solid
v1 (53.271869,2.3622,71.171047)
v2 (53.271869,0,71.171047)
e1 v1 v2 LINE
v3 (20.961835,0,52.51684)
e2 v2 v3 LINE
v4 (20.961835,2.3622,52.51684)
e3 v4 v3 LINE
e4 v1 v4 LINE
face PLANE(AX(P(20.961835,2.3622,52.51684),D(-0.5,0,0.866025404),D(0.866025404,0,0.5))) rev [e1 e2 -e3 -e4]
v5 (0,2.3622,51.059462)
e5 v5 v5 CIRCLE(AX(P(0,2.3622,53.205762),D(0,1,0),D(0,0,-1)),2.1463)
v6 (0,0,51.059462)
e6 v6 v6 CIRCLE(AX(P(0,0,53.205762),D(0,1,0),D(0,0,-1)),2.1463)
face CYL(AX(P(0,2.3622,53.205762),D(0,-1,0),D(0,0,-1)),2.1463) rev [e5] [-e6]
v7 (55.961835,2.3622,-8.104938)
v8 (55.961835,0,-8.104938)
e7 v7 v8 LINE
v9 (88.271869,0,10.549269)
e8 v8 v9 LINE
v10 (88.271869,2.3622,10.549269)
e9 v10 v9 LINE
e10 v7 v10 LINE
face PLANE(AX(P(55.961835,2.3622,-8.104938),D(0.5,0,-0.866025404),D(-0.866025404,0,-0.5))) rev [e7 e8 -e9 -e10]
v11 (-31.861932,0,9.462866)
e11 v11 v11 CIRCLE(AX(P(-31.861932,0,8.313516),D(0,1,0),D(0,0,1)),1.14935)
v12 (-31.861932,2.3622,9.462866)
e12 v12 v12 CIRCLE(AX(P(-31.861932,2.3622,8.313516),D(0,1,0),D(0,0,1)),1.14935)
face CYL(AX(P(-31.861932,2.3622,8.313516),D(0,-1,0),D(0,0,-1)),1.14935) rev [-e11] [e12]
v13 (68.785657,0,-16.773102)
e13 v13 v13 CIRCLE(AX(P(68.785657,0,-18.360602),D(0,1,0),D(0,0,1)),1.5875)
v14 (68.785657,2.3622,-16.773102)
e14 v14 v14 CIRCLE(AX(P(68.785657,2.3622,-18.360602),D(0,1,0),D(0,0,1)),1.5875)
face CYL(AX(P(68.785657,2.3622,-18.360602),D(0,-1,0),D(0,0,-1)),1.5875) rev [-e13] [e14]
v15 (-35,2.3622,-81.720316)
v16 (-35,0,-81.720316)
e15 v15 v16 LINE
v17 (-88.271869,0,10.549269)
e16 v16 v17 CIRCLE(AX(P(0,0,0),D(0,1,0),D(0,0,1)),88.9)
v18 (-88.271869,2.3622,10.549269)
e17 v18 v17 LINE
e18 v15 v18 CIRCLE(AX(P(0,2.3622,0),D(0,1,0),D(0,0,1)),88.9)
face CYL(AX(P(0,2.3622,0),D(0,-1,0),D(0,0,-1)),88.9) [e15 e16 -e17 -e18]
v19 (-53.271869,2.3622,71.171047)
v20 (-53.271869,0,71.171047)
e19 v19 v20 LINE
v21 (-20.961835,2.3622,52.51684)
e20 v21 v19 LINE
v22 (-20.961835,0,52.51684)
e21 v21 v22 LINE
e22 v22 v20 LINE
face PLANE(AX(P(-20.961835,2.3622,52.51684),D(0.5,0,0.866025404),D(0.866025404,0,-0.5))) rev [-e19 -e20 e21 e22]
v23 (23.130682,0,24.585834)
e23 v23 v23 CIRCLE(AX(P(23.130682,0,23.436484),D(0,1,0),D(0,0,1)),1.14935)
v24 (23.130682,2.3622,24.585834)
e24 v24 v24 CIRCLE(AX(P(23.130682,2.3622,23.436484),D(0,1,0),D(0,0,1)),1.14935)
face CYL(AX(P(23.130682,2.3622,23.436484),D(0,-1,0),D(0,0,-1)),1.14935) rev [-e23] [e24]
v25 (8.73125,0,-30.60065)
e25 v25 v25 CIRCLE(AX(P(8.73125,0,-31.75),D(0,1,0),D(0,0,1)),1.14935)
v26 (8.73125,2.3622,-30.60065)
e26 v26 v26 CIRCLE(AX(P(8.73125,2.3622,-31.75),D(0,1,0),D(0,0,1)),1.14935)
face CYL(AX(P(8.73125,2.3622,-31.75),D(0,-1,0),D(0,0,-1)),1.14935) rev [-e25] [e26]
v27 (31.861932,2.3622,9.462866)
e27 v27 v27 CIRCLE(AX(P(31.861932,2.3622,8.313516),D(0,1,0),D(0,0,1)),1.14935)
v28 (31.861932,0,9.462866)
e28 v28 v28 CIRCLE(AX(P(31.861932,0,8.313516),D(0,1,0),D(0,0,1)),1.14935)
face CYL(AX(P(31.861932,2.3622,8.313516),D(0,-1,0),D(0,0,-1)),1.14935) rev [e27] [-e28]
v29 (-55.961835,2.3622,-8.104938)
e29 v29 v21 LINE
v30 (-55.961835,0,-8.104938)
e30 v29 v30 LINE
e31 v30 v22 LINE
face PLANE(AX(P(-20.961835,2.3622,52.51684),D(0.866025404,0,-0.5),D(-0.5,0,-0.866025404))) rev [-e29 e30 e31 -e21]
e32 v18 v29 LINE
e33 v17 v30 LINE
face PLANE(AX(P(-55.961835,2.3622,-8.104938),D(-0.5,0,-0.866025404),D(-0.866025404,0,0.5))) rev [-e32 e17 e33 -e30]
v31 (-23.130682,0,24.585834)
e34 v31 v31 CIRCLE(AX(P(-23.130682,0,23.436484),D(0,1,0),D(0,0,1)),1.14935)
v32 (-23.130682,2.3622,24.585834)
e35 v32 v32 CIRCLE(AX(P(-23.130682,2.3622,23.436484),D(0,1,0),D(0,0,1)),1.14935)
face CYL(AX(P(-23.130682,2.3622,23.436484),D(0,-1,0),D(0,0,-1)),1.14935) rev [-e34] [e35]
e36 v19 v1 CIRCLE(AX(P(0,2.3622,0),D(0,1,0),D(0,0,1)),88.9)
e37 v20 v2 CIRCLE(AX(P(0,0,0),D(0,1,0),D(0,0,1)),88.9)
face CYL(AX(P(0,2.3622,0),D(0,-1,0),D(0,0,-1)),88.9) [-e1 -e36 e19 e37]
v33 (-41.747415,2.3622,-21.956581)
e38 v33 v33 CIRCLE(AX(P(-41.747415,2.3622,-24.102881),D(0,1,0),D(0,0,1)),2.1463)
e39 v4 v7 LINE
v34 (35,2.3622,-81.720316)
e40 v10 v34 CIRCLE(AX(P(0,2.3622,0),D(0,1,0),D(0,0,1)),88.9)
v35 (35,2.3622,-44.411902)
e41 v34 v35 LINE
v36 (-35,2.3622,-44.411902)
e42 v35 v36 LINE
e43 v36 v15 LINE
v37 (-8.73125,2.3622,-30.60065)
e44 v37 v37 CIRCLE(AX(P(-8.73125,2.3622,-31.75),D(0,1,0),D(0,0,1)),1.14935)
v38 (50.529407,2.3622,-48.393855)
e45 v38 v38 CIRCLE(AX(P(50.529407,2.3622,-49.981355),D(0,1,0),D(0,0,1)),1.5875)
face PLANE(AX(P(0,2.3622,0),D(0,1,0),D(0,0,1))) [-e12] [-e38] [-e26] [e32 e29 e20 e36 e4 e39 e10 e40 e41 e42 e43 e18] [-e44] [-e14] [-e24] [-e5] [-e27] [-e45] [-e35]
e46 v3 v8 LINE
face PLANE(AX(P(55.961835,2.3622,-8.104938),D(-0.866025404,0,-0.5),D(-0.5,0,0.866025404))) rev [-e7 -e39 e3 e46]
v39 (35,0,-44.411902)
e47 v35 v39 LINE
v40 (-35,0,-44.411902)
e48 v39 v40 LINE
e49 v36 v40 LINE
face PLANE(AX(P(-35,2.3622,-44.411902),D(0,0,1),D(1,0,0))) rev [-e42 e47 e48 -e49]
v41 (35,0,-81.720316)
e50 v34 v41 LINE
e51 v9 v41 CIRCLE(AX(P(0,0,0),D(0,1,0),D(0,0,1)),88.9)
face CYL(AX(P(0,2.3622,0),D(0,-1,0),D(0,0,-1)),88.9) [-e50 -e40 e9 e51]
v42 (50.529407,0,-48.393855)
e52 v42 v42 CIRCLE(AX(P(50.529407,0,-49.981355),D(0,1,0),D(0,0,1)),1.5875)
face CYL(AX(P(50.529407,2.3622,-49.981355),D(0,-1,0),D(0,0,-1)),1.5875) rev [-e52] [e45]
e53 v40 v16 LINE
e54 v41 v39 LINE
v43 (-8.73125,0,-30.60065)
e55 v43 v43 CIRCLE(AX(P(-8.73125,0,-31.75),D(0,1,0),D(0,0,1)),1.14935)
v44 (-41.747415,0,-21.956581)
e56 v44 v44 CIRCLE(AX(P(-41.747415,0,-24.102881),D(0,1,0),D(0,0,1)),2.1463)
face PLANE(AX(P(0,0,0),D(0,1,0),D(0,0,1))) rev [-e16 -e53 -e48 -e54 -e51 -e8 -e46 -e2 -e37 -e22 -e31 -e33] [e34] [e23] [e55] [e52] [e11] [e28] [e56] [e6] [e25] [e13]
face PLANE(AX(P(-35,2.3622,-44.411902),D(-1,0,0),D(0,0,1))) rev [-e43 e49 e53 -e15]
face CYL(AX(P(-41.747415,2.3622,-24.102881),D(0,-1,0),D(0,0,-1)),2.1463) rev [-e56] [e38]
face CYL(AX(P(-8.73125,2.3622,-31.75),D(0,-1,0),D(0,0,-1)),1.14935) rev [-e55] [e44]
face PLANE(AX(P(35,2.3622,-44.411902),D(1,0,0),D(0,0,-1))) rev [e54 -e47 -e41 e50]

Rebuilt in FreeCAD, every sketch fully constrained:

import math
import FreeCAD as App
import Part
import Sketcher
from FreeCAD import Vector
Q = App.Units.Quantity

doc = App.newDocument("Part")
params = doc.addObject("Spreadsheet::Sheet", "Params")
for row, (alias, value) in enumerate([
    ("sketch1_radius", "3.5 in"),
    ("sketch1_diameter", "0.169 in"),
    ("sketch1_diameter2", "0.125 in"),
    ("pad1_length", "0.093 in"),
], start=1):
    params.set(f"A{row}", alias)
    params.set(f"B{row}", "=" + value)
    params.setAlias(f"B{row}", alias)

body = doc.addObject("PartDesign::Body", "Body")

sketch1 = body.newObject("Sketcher::SketchObject", "Sketch")
sketch1.AttachmentSupport = (doc.getObject("XZ_Plane"), [""])
sketch1.MapMode = "FlatFace"
sketch1.addGeometry([
    Part.LineSegment(Vector(-35, -44.4, 0), Vector(-35, -81.7, 0)),
    Part.ArcOfCircle(Part.Circle(Vector(0, 0, 0), Vector(0, 0, 1), 88.9), math.radians(173), math.radians(247)),
    Part.LineSegment(Vector(-88.3, 10.5, 0), Vector(-56, -8.1, 0)),
    Part.LineSegment(Vector(-56, -8.1, 0), Vector(-21, 52.5, 0)),
    Part.LineSegment(Vector(-21, 52.5, 0), Vector(-53.3, 71.2, 0)),
    Part.ArcOfCircle(Part.Circle(Vector(0, 0, 0), Vector(0, 0, 1), 88.9), math.radians(53), math.radians(127)),
    Part.LineSegment(Vector(53.3, 71.2, 0), Vector(21, 52.5, 0)),
    Part.LineSegment(Vector(21, 52.5, 0), Vector(56, -8.1, 0)),
    Part.LineSegment(Vector(56, -8.1, 0), Vector(88.3, 10.5, 0)),
    Part.ArcOfCircle(Part.Circle(Vector(0, 0, 0), Vector(0, 0, 1), 88.9), math.radians(-67), math.radians(7)),
    Part.LineSegment(Vector(35, -81.7, 0), Vector(35, -44.4, 0)),
    Part.LineSegment(Vector(35, -44.4, 0), Vector(-35, -44.4, 0)),
    Part.Circle(Vector(0, 53.2, 0), Vector(0, 0, 1), 2.1),
    Part.Circle(Vector(-23.1, 23.4, 0), Vector(0, 0, 1), 1.1),
    Part.Circle(Vector(-31.9, 8.3, 0), Vector(0, 0, 1), 1.1),
    Part.Circle(Vector(23.1, 23.4, 0), Vector(0, 0, 1), 1.1),
    Part.Circle(Vector(31.9, 8.3, 0), Vector(0, 0, 1), 1.1),
    Part.Circle(Vector(-41.7, -24.1, 0), Vector(0, 0, 1), 2.1),
    Part.Circle(Vector(-8.7, -31.8, 0), Vector(0, 0, 1), 1.1),
    Part.Circle(Vector(8.7, -31.8, 0), Vector(0, 0, 1), 1.1),
    Part.Circle(Vector(68.8, -18.4, 0), Vector(0, 0, 1), 1.6),
    Part.Circle(Vector(50.5, -50, 0), Vector(0, 0, 1), 1.6),
], False)
sketch1.addConstraint([
    Sketcher.Constraint("Coincident", 0, 2, 1, 2),
    Sketcher.Constraint("Coincident", 1, 1, 2, 1),
    Sketcher.Constraint("Coincident", 2, 2, 3, 1),
    Sketcher.Constraint("Coincident", 3, 2, 4, 1),
    Sketcher.Constraint("Coincident", 4, 2, 5, 2),
    Sketcher.Constraint("Coincident", 5, 1, 6, 1),
    Sketcher.Constraint("Coincident", 6, 2, 7, 1),
    Sketcher.Constraint("Coincident", 7, 2, 8, 1),
    Sketcher.Constraint("Coincident", 8, 2, 9, 2),
    Sketcher.Constraint("Coincident", 9, 1, 10, 1),
    Sketcher.Constraint("Coincident", 10, 2, 11, 1),
    Sketcher.Constraint("Coincident", 11, 2, 0, 1),
    Sketcher.Constraint("Vertical", 0),
    Sketcher.Constraint("Vertical", 10),
    Sketcher.Constraint("Horizontal", 11),
    Sketcher.Constraint("Coincident", 1, 3, -1, 1),
    Sketcher.Constraint("Coincident", 5, 3, -1, 1),
    Sketcher.Constraint("Coincident", 9, 3, -1, 1),
    Sketcher.Constraint("Equal", 1, 5),
    Sketcher.Constraint("Equal", 5, 9),
    Sketcher.Constraint("Equal", 13, 14),
    Sketcher.Constraint("Equal", 14, 15),
    Sketcher.Constraint("Equal", 15, 16),
    Sketcher.Constraint("Equal", 12, 17),
    Sketcher.Constraint("Equal", 16, 18),
    Sketcher.Constraint("Equal", 18, 19),
    Sketcher.Constraint("Equal", 20, 21),
    Sketcher.Constraint("Symmetric", 13, 3, 15, 3, -2),
    Sketcher.Constraint("Symmetric", 14, 3, 16, 3, -2),
    Sketcher.Constraint("Symmetric", 18, 3, 19, 3, -2),
    Sketcher.Constraint("Symmetric", 3, 2, 6, 2, -2),
    Sketcher.Constraint("Symmetric", 2, 2, 7, 2, -2),
    Sketcher.Constraint("PointOnObject", 12, 3, -2),
    Sketcher.Constraint("Perpendicular", 2, 3),
    Sketcher.Constraint("Perpendicular", 3, 4),
    Sketcher.Constraint("Perpendicular", 6, 7),
    Sketcher.Constraint("Perpendicular", 7, 8),
    Sketcher.Constraint("Horizontal", 0, 2, 9, 1),
    Sketcher.Constraint("Equal", 2, 4),
    Sketcher.Constraint("Radius", 1, Q("3.5 in")),
    Sketcher.Constraint("Diameter", 12, Q("0.169 in")),
    Sketcher.Constraint("Diameter", 20, Q("0.125 in")),
    Sketcher.Constraint("Angle", 2, Q("-30 deg")),
    Sketcher.Constraint("Diameter", 13, Q("0.0905 in")),
    Sketcher.Constraint("DistanceY", 18, 3, -1, 1, Q("1.25 in")),
    Sketcher.Constraint("DistanceX", 18, 3, -1, 1, Q("0.34375 in")),
    Sketcher.Constraint("DistanceX", 14, 3, 13, 3, Q("0.34375 in")),
    Sketcher.Constraint("DistanceX", 21, 3, 20, 3, Q("0.71875 in")),
    Sketcher.Constraint("DistanceX", 11, 2, 11, 1, Q("70 mm")),
    Sketcher.Constraint("DistanceY", 10, 2, -1, 1, Q("1.7485001 in")),
    Sketcher.Constraint("Distance", 3, Q("70 mm")),
    Sketcher.Constraint("DistanceY", 10, 2, 20, 3, Q("26.0513 mm")),
    Sketcher.Constraint("DistanceX", 13, 3, -1, 1, Q("23.130682 mm")),
    Sketcher.Constraint("DistanceY", 17, 3, -1, 1, Q("24.102881 mm")),
    Sketcher.Constraint("DistanceY", 2, 2, -1, 1, Q("8.104938 mm")),
    Sketcher.Constraint("DistanceY", 14, 3, 13, 3, Q("15.122969 mm")),
    Sketcher.Constraint("DistanceY", 20, 3, 16, 3, Q("26.674118 mm")),
    Sketcher.Constraint("DistanceY", 21, 3, 16, 3, Q("58.294871 mm")),
    Sketcher.Constraint("DistanceX", 2, 2, 17, 3, Q("14.214421 mm")),
    Sketcher.Constraint("DistanceY", 3, 2, 12, 3, Q("0.688922 mm")),
    Sketcher.Constraint("DistanceX", 7, 2, 20, 3, Q("12.823821 mm")),
])
sketch1.setExpression("Constraints[39]", "Params.sketch1_radius")
sketch1.setExpression("Constraints[40]", "Params.sketch1_diameter")
sketch1.setExpression("Constraints[41]", "Params.sketch1_diameter2")
pad1 = body.newObject("PartDesign::Pad", "Pad")
pad1.Profile = sketch1
pad1.setExpression("Length", "Params.pad1_length")
pad1.Reversed = True

doc.recompute()
